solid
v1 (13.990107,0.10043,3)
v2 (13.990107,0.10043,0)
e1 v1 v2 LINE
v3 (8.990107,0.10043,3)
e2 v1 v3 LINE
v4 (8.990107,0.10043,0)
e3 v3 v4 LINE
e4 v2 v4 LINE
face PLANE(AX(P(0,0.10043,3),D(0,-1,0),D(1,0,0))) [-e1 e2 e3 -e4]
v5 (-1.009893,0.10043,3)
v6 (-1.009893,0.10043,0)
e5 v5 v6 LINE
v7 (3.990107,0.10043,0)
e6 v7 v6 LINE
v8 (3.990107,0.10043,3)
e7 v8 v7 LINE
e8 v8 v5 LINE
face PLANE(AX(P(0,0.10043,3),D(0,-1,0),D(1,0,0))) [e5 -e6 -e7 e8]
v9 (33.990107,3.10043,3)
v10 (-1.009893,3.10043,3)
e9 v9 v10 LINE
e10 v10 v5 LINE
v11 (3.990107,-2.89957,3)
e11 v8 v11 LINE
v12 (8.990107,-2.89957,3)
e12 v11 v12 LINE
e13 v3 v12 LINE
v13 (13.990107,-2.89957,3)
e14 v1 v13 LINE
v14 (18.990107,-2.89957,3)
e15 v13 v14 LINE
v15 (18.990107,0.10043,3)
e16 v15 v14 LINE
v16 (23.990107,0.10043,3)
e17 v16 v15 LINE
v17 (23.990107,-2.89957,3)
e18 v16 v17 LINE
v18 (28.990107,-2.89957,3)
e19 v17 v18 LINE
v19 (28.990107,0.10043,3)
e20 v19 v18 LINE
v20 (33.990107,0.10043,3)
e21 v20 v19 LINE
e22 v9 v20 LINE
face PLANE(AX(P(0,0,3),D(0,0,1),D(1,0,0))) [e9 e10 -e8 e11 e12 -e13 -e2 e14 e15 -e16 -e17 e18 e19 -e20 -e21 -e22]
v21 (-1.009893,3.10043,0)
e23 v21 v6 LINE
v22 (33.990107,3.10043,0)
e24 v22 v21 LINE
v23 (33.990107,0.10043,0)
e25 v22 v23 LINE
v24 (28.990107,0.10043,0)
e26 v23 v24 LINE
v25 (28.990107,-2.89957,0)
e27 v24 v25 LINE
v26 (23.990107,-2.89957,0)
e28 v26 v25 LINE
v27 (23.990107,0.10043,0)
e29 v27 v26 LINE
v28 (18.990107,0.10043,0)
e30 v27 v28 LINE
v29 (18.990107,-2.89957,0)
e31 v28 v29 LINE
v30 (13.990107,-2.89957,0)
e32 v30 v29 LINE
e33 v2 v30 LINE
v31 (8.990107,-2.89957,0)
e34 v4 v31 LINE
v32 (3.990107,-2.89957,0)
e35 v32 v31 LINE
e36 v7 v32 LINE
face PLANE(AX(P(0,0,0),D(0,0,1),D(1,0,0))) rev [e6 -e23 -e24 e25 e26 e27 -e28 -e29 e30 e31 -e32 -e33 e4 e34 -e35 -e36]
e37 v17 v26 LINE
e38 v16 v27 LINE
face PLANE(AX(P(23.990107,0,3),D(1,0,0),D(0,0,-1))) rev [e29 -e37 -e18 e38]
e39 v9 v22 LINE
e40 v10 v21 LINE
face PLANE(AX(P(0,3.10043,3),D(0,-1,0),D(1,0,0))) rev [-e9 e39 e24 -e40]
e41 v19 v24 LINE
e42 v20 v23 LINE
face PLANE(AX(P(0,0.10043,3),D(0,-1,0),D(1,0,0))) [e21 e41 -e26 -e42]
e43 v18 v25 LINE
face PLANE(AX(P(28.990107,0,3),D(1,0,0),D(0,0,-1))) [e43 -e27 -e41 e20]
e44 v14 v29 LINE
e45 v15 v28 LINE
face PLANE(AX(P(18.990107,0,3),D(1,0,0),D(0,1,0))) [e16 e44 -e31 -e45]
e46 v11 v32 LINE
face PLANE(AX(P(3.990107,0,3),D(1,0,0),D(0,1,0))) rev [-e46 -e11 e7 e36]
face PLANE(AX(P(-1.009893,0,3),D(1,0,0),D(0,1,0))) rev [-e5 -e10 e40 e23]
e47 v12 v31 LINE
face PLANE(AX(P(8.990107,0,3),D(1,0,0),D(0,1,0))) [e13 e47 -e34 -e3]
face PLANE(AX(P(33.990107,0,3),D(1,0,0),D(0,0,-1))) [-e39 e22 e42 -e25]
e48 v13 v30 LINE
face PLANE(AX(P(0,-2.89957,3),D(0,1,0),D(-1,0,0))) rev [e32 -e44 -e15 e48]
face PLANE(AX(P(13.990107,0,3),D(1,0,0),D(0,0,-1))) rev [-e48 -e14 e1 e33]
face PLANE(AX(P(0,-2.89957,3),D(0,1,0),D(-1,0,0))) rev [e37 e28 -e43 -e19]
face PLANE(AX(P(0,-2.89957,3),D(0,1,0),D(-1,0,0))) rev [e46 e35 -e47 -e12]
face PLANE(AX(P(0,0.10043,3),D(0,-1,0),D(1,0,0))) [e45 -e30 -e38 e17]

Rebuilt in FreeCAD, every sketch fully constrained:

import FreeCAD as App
import Part
import Sketcher
Q = App.Units.Quantity


def add_polygon(sketch, points):
    """Adds a closed chain of lines whose ends are joined by coincident constraints."""
    first, n = sketch.GeometryCount, len(points)
    for a, b in zip(points, points[1:] + points[:1]):
        sketch.addGeometry(Part.LineSegment(App.Vector(*a, 0), App.Vector(*b, 0)), False)
    for i in range(n):
        sketch.addConstraint(Sketcher.Constraint("Coincident", first + i, 2, first + (i + 1) % n, 1))

doc = App.newDocument("Part")
body = doc.addObject("PartDesign::Body", "Body")

# Sketch on XY plane
sketch1 = body.newObject("Sketcher::SketchObject", "Sketch")
sketch1.AttachmentSupport = (doc.getObject("XY_Plane"), [""])
sketch1.MapMode = "FlatFace"
add_polygon(sketch1, [(18.990107, -2.89957), (18.990107, 0.10043), (23.990107, 0.10043), (23.990107, -2.89957), (28.990107, -2.89957), (28.990107, 0.10043), (33.990107, 0.10043), (33.990107, 3.10043), (-1.009893, 3.10043), (-1.009893, 0.10043), (3.990107, 0.10043), (3.990107, -2.89957), (8.990107, -2.89957), (8.990107, 0.10043), (13.990107, 0.10043), (13.990107, -2.89957)])  # lines 0-15
sketch1.addConstraint([
    Sketcher.Constraint("Vertical", 0),
    Sketcher.Constraint("Horizontal", 1),
    Sketcher.Constraint("Vertical", 2),
    Sketcher.Constraint("Horizontal", 3),
    Sketcher.Constraint("Vertical", 4),
    Sketcher.Constraint("Horizontal", 5),
    Sketcher.Constraint("Vertical", 6),
    Sketcher.Constraint("Horizontal", 7),
    Sketcher.Constraint("Vertical", 8),
    Sketcher.Constraint("Horizontal", 9),
    Sketcher.Constraint("Vertical", 10),
    Sketcher.Constraint("Horizontal", 11),
    Sketcher.Constraint("Vertical", 12),
    Sketcher.Constraint("Horizontal", 13),
    Sketcher.Constraint("Vertical", 14),
    Sketcher.Constraint("Horizontal", 15),
    Sketcher.Constraint("Horizontal", 1, 2, 4, 2),
    Sketcher.Constraint("Horizontal", 5, 2, 8, 2),
    Sketcher.Constraint("Horizontal", 3, 2, 10, 2),
    Sketcher.Constraint("Horizontal", 9, 2, 12, 2),
    Sketcher.Constraint("Horizontal", 11, 2, 14, 2),
    Sketcher.Constraint("Equal", 1, 3),
    Sketcher.Constraint("Equal", 3, 5),
    Sketcher.Constraint("Equal", 5, 9),
    Sketcher.Constraint("Equal", 9, 11),
    Sketcher.Constraint("Equal", 11, 13),
    Sketcher.Constraint("Equal", 13, 15),
    Sketcher.Constraint("Equal", 4, 6),
    Sketcher.Constraint("DistanceX", 1, 1, 1, 2, Q("5 mm")),
    Sketcher.Constraint("DistanceY", 0, 1, 0, 2, Q("3 mm")),
    Sketcher.Constraint("DistanceY", -1, 1, 0, 2, Q("0.10043 mm")),
    Sketcher.Constraint("DistanceX", -1, 1, 0, 2, Q("18.990107 mm")),
])
pad1 = body.newObject("PartDesign::Pad", "Pad")
pad1.Profile = sketch1
pad1.Length = 3

doc.recompute()
